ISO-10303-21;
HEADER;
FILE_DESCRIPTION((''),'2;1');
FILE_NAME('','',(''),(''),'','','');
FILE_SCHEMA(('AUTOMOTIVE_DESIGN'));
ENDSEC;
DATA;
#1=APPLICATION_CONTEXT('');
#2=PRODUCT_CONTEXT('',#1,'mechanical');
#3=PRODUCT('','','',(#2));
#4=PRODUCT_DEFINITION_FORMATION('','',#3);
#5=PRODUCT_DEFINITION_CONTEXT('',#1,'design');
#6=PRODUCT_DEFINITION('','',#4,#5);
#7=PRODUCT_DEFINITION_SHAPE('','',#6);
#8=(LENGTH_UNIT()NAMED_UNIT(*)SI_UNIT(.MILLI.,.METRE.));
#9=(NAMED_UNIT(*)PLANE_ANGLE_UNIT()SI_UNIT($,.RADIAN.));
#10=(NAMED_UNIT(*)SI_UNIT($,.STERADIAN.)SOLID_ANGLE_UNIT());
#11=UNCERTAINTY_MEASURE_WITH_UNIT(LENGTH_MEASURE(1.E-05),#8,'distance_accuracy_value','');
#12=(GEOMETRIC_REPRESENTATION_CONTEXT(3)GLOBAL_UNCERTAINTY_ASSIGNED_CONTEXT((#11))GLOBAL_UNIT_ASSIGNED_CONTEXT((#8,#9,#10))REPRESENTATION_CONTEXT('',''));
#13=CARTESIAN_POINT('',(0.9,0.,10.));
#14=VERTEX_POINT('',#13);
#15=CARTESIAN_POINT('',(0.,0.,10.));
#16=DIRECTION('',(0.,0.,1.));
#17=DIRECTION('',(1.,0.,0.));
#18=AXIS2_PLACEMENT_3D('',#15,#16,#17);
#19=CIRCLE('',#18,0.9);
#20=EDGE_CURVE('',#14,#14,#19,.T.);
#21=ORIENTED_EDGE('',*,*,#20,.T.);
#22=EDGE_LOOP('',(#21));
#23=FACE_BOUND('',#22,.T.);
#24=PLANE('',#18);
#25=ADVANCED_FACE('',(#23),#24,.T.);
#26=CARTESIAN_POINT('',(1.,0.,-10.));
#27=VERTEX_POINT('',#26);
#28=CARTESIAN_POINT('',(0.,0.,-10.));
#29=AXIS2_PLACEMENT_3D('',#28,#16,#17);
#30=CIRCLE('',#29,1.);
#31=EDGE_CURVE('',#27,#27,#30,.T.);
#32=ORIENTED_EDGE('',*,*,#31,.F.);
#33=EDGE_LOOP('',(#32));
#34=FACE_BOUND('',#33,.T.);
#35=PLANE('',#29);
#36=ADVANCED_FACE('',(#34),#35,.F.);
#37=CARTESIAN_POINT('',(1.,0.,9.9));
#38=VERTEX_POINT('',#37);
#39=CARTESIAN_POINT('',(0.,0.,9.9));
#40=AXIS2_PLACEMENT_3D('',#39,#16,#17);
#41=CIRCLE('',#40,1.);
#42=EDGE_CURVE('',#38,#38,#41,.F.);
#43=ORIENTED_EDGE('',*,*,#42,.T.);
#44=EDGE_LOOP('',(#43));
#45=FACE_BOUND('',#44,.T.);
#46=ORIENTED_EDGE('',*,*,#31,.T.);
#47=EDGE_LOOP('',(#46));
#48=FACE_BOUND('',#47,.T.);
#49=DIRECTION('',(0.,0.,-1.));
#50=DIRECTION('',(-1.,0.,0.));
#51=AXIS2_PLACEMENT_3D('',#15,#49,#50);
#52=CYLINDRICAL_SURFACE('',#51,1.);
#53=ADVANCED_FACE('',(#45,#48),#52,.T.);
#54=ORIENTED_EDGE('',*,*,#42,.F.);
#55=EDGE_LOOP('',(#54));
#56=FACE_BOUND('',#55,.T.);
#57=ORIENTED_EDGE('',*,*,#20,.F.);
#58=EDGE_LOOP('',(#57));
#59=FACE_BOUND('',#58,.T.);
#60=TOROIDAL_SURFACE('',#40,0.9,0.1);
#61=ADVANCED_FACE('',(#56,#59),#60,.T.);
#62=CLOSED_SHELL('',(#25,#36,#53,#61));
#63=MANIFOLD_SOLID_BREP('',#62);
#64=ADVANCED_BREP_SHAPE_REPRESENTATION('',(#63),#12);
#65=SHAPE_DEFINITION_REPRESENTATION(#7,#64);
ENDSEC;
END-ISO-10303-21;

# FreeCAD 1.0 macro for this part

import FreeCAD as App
import Part
import Sketcher

V = App.Vector


def edges_at(feature, points):
    """Names of the edges that pass closest to the given points."""
    edges = feature.Shape.Edges
    near = lambda p: min(range(len(edges)), key=lambda i: edges[i].distToShape(Part.Vertex(*p))[0])
    return sorted({f"Edge{near(p) + 1}" for p in points})

doc = App.newDocument("Part")
body = doc.addObject("PartDesign::Body", "Body")

# Sketch on XY plane
sketch1 = body.newObject("Sketcher::SketchObject", "Sketch")
sketch1.AttachmentSupport = (doc.getObject("XY_Plane"), [""])
sketch1.MapMode = "FlatFace"
sketch1.addGeometry(Part.Circle(V(0, 0, 0), V(0, 0, 1), 1), False)
sketch1.addConstraint(Sketcher.Constraint("Coincident", 0, 3, -1, 1))
sketch1.addConstraint(Sketcher.Constraint("Diameter", 0, 2.0))
pad1 = body.newObject("PartDesign::Pad", "Pad")
pad1.Profile = sketch1
pad1.Length = 20
pad1.Midplane = True
doc.recompute()

fillet = body.newObject("PartDesign::Fillet", "Fillet")
fillet.Base = (pad1, edges_at(pad1, [(-1, 0, 10)]))
fillet.Radius = 0.1

doc.recompute()
